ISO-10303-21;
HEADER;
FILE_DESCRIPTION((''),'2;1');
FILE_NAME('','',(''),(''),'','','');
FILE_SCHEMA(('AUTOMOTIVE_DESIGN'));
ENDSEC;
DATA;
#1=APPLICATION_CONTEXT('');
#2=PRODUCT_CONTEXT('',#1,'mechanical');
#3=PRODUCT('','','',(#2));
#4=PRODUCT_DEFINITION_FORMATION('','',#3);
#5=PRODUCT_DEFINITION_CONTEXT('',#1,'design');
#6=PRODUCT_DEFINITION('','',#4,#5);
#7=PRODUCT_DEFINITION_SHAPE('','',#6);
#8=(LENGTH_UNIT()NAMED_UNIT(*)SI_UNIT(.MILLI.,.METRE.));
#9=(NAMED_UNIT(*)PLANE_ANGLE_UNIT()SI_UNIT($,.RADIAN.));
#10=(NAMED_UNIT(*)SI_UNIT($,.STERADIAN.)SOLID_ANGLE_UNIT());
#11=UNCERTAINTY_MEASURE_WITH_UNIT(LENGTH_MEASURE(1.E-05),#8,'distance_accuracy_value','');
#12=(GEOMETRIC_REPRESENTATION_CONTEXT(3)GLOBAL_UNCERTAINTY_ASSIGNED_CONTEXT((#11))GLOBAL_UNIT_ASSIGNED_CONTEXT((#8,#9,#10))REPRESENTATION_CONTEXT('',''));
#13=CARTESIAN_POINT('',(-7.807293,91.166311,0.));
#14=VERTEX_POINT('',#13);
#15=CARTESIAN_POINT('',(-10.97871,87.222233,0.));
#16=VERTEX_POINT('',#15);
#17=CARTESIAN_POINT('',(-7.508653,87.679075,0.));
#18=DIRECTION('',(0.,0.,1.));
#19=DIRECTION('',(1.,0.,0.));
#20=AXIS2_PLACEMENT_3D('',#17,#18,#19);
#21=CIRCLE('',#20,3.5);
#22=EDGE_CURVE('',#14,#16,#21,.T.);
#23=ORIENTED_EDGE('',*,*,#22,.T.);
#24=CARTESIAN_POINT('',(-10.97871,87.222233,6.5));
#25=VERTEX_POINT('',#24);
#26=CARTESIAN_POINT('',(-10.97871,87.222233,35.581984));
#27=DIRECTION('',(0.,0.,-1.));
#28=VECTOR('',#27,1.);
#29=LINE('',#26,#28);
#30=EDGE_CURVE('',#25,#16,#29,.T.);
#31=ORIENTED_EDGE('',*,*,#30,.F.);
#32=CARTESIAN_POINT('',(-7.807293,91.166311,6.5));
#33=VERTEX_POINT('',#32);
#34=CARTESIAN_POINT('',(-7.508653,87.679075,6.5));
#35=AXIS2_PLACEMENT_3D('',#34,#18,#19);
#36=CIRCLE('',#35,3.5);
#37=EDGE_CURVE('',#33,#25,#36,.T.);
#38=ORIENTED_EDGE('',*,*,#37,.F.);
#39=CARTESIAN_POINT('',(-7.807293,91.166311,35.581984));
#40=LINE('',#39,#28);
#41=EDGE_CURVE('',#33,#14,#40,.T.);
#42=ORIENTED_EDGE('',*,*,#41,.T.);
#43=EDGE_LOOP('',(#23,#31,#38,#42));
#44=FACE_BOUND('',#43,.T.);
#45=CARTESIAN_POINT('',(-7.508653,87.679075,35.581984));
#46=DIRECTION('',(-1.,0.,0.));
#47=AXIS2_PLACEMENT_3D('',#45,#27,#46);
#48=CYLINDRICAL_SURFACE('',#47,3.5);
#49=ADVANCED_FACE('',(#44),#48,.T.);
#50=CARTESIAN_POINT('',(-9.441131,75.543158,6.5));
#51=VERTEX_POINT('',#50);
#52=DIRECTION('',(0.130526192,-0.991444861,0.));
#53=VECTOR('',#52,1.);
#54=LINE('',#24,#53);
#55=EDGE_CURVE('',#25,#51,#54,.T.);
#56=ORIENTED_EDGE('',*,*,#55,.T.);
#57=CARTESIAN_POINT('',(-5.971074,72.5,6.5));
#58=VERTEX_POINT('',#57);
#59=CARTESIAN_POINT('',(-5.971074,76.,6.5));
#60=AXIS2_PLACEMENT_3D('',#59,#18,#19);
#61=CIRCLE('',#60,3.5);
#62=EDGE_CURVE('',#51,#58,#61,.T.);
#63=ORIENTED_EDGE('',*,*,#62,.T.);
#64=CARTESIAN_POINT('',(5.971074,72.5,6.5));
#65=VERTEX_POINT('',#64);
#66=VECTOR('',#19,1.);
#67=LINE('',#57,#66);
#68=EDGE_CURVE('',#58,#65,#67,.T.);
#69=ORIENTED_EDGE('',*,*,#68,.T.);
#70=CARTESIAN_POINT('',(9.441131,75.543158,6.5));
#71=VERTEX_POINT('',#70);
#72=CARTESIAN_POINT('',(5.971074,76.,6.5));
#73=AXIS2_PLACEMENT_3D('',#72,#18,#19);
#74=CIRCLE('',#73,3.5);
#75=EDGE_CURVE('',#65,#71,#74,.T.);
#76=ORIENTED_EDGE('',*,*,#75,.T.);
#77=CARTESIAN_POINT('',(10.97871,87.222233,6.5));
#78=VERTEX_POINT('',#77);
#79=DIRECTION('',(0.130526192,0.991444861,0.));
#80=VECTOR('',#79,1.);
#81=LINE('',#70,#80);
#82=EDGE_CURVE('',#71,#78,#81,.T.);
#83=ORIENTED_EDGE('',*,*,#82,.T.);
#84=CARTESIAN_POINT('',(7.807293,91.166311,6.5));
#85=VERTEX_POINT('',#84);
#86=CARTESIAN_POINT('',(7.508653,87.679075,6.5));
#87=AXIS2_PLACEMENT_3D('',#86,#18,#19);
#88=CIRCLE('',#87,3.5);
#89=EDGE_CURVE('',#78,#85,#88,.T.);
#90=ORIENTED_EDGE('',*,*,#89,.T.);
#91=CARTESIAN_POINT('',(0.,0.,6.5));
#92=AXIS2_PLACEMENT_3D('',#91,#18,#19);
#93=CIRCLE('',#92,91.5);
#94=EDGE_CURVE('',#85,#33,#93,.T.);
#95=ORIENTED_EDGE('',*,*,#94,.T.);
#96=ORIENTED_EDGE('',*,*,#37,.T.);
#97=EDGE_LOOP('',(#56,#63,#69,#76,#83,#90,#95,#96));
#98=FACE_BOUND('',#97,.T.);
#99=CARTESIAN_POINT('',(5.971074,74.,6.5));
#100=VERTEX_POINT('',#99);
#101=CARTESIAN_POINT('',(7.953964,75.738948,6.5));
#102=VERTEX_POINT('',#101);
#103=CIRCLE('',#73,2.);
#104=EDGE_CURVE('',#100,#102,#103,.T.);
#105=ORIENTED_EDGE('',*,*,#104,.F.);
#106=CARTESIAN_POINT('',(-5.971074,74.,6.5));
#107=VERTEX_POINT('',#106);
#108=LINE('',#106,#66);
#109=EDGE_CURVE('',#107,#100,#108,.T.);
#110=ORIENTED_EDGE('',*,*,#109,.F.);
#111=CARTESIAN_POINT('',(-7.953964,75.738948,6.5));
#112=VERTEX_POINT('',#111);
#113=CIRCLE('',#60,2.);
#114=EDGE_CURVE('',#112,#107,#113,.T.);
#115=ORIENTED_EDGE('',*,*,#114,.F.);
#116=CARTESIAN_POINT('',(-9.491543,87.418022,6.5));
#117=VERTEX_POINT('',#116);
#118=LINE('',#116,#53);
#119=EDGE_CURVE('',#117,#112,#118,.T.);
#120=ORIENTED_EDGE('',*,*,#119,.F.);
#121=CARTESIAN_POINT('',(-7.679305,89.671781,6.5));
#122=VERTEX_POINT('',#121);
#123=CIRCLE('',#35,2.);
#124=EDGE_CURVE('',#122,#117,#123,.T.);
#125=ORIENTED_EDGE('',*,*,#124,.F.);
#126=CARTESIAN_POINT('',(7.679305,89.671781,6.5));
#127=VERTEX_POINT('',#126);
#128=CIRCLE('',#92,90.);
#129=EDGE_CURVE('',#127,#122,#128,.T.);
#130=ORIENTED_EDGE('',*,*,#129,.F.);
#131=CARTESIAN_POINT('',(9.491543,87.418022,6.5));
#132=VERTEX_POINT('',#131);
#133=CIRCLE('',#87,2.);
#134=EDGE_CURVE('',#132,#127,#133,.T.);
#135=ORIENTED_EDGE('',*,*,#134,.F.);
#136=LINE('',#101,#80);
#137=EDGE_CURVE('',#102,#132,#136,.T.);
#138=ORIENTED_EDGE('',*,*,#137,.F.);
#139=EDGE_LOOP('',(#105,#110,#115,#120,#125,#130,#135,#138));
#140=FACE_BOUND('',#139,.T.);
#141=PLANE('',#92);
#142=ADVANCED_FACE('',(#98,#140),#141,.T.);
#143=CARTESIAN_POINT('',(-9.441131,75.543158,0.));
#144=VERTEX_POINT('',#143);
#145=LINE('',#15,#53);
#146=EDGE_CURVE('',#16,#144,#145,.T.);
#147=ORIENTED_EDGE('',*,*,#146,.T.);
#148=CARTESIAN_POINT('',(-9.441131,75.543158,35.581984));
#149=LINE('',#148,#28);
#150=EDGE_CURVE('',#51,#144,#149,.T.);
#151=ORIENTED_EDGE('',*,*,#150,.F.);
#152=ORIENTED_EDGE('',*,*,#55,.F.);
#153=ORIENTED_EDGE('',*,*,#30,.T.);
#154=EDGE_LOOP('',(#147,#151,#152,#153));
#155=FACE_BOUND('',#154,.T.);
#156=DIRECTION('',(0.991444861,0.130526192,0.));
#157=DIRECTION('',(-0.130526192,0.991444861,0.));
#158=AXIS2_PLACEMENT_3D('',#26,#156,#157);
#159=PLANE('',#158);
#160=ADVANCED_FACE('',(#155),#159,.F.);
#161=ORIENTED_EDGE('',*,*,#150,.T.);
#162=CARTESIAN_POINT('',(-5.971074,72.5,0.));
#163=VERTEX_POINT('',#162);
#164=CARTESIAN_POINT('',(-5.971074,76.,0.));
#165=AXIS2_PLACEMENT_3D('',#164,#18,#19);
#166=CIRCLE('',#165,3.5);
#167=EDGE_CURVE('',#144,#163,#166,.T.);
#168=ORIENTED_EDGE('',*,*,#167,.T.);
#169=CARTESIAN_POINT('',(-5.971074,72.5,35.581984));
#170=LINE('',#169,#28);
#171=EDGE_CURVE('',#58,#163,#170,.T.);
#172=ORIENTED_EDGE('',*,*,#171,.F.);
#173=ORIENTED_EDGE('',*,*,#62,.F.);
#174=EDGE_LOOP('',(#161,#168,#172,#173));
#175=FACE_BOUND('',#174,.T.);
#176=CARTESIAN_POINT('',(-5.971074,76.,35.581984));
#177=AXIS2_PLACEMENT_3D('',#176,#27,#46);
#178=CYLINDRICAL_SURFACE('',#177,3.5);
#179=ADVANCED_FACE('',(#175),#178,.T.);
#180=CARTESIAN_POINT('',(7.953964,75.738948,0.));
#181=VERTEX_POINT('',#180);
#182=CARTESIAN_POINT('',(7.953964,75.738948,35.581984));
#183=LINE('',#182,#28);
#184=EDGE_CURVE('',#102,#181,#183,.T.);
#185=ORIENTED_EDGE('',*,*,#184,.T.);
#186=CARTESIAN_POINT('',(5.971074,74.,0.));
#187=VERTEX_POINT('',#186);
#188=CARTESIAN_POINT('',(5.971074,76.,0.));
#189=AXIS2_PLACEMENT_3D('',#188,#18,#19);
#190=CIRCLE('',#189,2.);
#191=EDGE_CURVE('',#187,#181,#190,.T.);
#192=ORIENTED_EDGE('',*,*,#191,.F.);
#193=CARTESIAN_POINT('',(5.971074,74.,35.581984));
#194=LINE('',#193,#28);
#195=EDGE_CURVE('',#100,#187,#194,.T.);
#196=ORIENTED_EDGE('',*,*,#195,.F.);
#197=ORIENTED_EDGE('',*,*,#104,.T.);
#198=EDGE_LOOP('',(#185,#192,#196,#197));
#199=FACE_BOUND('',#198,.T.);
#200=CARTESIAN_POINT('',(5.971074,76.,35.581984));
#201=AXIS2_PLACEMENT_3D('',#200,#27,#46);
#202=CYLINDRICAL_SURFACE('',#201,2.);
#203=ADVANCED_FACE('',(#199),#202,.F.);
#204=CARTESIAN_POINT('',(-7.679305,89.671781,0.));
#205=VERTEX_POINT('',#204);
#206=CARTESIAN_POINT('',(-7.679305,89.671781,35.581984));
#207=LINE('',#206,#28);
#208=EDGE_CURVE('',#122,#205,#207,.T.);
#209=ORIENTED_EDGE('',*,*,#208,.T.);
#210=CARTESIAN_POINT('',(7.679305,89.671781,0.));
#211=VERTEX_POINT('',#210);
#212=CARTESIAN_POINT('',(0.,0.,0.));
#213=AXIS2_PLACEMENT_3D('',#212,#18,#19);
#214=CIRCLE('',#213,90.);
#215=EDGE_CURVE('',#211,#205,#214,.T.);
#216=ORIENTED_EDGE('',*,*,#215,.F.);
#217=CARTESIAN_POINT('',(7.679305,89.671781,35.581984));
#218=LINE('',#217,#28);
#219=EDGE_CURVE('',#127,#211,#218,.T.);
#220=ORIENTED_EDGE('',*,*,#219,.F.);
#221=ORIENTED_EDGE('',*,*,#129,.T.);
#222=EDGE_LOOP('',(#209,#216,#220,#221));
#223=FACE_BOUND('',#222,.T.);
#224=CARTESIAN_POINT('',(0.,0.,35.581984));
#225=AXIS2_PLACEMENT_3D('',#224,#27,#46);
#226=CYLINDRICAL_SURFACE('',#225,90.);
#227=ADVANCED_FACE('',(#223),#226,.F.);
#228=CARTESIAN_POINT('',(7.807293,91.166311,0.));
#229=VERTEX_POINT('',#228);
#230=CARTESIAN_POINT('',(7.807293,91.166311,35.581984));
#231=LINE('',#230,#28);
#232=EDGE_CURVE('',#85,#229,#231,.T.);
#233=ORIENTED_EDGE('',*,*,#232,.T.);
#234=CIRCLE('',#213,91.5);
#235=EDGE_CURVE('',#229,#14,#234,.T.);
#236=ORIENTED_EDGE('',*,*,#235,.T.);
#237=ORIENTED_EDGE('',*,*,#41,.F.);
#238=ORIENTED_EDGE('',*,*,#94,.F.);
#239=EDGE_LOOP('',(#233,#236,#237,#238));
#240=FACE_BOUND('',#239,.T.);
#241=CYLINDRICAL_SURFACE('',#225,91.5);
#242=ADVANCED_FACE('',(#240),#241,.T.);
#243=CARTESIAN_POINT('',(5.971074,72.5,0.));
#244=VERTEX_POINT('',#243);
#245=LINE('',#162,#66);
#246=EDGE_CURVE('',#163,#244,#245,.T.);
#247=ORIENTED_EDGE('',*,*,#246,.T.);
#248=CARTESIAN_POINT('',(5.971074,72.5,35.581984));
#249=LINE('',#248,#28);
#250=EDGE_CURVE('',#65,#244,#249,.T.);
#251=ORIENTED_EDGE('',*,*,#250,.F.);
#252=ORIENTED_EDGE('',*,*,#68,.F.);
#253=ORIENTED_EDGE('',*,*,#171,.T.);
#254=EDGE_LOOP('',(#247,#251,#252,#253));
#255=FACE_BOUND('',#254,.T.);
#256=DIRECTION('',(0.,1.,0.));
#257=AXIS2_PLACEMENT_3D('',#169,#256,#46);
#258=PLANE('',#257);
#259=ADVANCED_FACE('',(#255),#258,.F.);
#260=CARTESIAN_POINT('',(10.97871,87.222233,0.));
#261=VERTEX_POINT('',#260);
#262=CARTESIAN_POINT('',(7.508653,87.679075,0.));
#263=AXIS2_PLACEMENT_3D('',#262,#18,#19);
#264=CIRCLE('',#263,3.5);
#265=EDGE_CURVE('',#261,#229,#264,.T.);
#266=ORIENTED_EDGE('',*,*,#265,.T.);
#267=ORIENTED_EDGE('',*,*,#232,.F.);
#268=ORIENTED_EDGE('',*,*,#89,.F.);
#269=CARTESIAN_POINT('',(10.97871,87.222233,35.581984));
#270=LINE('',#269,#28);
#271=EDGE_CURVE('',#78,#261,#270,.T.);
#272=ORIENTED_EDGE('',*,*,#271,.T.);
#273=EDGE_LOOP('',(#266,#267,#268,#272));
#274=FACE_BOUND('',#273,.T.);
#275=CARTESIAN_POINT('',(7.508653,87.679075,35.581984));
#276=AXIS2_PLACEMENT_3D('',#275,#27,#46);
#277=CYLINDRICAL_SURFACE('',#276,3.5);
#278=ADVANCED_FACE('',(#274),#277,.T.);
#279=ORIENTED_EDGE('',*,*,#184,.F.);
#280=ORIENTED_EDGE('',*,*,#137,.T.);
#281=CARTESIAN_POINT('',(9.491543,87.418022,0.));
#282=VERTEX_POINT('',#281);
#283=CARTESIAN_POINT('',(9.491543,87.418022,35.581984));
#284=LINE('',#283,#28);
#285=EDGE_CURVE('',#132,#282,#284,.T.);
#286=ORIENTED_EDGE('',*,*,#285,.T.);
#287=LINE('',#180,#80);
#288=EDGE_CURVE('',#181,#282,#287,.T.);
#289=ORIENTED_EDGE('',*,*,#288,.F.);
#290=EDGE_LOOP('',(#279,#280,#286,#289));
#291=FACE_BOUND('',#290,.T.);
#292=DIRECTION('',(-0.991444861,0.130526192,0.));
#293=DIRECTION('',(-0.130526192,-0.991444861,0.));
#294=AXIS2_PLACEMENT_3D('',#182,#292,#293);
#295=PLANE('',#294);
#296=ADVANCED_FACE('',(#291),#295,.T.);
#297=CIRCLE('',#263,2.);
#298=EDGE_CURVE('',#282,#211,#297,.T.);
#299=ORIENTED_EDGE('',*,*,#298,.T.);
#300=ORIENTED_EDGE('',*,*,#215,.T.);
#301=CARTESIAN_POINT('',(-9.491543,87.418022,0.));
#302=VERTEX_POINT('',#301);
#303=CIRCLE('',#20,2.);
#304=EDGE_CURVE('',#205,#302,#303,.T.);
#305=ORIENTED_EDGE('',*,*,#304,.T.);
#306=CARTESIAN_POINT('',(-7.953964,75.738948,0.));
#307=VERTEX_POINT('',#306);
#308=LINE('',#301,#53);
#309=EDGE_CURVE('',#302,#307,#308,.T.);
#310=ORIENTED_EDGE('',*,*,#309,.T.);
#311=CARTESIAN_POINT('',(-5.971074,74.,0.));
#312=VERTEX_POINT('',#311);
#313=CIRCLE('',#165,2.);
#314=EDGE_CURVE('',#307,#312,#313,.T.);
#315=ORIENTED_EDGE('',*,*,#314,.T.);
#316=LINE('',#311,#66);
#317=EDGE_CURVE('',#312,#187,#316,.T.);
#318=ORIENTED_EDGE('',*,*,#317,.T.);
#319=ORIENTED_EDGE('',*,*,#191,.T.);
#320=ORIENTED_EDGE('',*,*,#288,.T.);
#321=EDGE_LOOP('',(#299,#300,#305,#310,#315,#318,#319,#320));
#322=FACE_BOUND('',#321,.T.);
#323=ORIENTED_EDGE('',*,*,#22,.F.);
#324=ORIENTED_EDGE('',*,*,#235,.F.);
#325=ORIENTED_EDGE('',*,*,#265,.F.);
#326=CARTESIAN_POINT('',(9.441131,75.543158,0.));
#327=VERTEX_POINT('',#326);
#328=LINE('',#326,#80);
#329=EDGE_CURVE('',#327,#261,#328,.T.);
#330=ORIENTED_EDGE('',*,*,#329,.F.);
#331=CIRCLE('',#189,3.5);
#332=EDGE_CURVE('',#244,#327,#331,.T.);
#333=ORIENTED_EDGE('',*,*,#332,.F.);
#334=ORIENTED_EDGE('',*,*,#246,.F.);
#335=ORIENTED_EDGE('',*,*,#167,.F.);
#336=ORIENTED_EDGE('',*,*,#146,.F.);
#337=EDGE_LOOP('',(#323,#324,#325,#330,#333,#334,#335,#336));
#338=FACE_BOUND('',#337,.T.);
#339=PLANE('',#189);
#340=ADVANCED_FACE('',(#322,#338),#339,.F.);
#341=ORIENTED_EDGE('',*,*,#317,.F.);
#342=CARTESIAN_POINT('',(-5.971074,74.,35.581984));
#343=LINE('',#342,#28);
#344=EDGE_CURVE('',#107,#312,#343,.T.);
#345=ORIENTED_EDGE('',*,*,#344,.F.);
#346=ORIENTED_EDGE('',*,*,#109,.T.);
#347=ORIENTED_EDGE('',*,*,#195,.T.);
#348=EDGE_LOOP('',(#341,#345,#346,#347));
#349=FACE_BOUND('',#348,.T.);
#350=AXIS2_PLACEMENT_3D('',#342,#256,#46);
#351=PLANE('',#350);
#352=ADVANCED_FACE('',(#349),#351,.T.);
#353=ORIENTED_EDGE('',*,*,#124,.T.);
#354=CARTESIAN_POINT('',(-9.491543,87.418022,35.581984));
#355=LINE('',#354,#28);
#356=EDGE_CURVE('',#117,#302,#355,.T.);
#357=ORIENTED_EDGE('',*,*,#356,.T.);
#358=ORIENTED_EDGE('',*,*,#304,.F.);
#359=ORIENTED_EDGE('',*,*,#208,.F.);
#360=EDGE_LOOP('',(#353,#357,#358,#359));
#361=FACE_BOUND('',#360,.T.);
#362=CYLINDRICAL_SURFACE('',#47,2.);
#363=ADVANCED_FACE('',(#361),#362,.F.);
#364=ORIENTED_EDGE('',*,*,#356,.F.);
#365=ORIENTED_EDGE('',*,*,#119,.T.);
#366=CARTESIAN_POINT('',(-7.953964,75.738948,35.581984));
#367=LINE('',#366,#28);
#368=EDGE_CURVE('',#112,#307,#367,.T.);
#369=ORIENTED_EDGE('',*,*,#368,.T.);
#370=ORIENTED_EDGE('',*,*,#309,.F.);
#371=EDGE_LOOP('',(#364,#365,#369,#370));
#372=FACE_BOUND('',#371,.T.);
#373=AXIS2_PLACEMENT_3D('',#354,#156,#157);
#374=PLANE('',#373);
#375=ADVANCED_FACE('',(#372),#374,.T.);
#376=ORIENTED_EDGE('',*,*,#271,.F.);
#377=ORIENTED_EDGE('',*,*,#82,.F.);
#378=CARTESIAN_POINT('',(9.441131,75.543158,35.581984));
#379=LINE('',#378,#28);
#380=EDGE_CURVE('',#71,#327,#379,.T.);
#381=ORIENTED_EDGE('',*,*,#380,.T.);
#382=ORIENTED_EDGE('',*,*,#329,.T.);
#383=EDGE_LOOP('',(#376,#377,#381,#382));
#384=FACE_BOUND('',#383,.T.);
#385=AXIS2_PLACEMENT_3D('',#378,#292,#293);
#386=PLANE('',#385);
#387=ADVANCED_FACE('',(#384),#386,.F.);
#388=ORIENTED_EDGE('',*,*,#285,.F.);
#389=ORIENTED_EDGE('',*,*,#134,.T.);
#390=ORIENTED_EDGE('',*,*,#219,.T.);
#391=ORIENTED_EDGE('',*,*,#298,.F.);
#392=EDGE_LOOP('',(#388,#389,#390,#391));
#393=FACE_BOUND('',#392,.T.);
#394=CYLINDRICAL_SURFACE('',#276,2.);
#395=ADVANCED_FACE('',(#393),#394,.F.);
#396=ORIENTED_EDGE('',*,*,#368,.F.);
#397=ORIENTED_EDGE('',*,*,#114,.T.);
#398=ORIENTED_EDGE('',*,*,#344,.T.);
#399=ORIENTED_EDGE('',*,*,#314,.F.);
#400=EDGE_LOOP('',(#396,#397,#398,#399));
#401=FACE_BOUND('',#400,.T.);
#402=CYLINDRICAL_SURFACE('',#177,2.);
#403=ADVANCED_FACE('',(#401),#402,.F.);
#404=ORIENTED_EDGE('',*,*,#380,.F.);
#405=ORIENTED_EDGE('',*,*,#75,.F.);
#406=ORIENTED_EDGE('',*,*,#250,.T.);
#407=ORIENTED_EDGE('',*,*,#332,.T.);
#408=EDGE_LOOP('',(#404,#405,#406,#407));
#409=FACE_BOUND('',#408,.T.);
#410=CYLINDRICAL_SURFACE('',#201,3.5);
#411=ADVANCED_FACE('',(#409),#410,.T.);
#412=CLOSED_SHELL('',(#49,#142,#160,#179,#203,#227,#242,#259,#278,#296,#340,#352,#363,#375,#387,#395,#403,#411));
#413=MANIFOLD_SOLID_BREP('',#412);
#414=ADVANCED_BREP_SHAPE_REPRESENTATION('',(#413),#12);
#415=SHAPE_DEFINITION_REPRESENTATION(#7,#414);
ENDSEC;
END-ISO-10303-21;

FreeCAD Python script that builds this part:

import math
import FreeCAD as App
import Part
import Sketcher
Q = App.Units.Quantity

doc = App.newDocument("Part")
body = doc.addObject("PartDesign::Body", "Body")

# Sketch on XY plane
sketch1 = body.newObject("Sketcher::SketchObject", "Sketch")
sketch1.AttachmentSupport = (doc.getObject("XY_Plane"), [""])
sketch1.MapMode = "FlatFace"
sketch1.addGeometry(Part.LineSegment(App.Vector(9.441131, 75.543158, 0), App.Vector(10.97871, 87.222233, 0)), False)
sketch1.addGeometry(Part.ArcOfCircle(Part.Circle(App.Vector(7.508653, 87.679075, 0), App.Vector(0, 0, 1), 3.5), math.radians(-7.5), math.radians(85.105251)), False)
sketch1.addGeometry(Part.ArcOfCircle(Part.Circle(App.Vector(0, 0, 0), App.Vector(0, 0, 1), 91.5), math.radians(85.105251), math.radians(94.894749)), False)
sketch1.addGeometry(Part.ArcOfCircle(Part.Circle(App.Vector(-7.508653, 87.679075, 0), App.Vector(0, 0, 1), 3.5), math.radians(94.894749), math.radians(187.5)), False)
sketch1.addGeometry(Part.LineSegment(App.Vector(-10.97871, 87.222233, 0), App.Vector(-9.441131, 75.543158, 0)), False)
sketch1.addGeometry(Part.ArcOfCircle(Part.Circle(App.Vector(-5.971074, 76, 0), App.Vector(0, 0, 1), 3.5), math.radians(-172.5), math.radians(-90)), False)
sketch1.addGeometry(Part.LineSegment(App.Vector(-5.971074, 72.5, 0), App.Vector(5.971074, 72.5, 0)), False)
sketch1.addGeometry(Part.ArcOfCircle(Part.Circle(App.Vector(5.971074, 76, 0), App.Vector(0, 0, 1), 3.5), math.radians(-90), math.radians(-7.5)), False)
sketch1.addGeometry(Part.LineSegment(App.Vector(-7.953964, 75.738948, 0), App.Vector(-9.491543, 87.418022, 0)), False)
sketch1.addGeometry(Part.ArcOfCircle(Part.Circle(App.Vector(-7.508653, 87.679075, 0), App.Vector(0, 0, 1), 2), math.radians(94.894749), math.radians(187.5)), False)
sketch1.addGeometry(Part.ArcOfCircle(Part.Circle(App.Vector(0, 0, 0), App.Vector(0, 0, 1), 90), math.radians(85.105251), math.radians(94.894749)), False)
sketch1.addGeometry(Part.ArcOfCircle(Part.Circle(App.Vector(7.508653, 87.679075, 0), App.Vector(0, 0, 1), 2), math.radians(-7.5), math.radians(85.105251)), False)
sketch1.addGeometry(Part.LineSegment(App.Vector(9.491543, 87.418022, 0), App.Vector(7.953964, 75.738948, 0)), False)
sketch1.addGeometry(Part.ArcOfCircle(Part.Circle(App.Vector(5.971074, 76, 0), App.Vector(0, 0, 1), 2), math.radians(-90), math.radians(-7.5)), False)
sketch1.addGeometry(Part.LineSegment(App.Vector(5.971074, 74, 0), App.Vector(-5.971074, 74, 0)), False)
sketch1.addGeometry(Part.ArcOfCircle(Part.Circle(App.Vector(-5.971074, 76, 0), App.Vector(0, 0, 1), 2), math.radians(-172.5), math.radians(-90)), False)
sketch1.addConstraint(Sketcher.Constraint("Tangent", 0, 2, 1, 1))
sketch1.addConstraint(Sketcher.Constraint("Tangent", 1, 2, 2, 1))
sketch1.addConstraint(Sketcher.Constraint("Tangent", 2, 2, 3, 1))
sketch1.addConstraint(Sketcher.Constraint("Tangent", 3, 2, 4, 1))
sketch1.addConstraint(Sketcher.Constraint("Tangent", 4, 2, 5, 1))
sketch1.addConstraint(Sketcher.Constraint("Tangent", 5, 2, 6, 1))
sketch1.addConstraint(Sketcher.Constraint("Tangent", 6, 2, 7, 1))
sketch1.addConstraint(Sketcher.Constraint("Tangent", 7, 2, 0, 1))
sketch1.addConstraint(Sketcher.Constraint("Tangent", 8, 2, 9, 2))
sketch1.addConstraint(Sketcher.Constraint("Tangent", 9, 1, 10, 2))
sketch1.addConstraint(Sketcher.Constraint("Tangent", 10, 1, 11, 2))
sketch1.addConstraint(Sketcher.Constraint("Tangent", 11, 1, 12, 1))
sketch1.addConstraint(Sketcher.Constraint("Tangent", 12, 2, 13, 2))
sketch1.addConstraint(Sketcher.Constraint("Tangent", 13, 1, 14, 1))
sketch1.addConstraint(Sketcher.Constraint("Tangent", 14, 2, 15, 2))
sketch1.addConstraint(Sketcher.Constraint("Tangent", 15, 1, 8, 1))
sketch1.addConstraint(Sketcher.Constraint("Horizontal", 6))
sketch1.addConstraint(Sketcher.Constraint("Horizontal", 14))
sketch1.addConstraint(Sketcher.Constraint("Coincident", 2, 3, -1, 1))
sketch1.addConstraint(Sketcher.Constraint("Coincident", 10, 3, -1, 1))
sketch1.addConstraint(Sketcher.Constraint("Coincident", 9, 3, 3, 3))
sketch1.addConstraint(Sketcher.Constraint("Coincident", 11, 3, 1, 3))
sketch1.addConstraint(Sketcher.Constraint("Coincident", 13, 3, 7, 3))
sketch1.addConstraint(Sketcher.Constraint("Coincident", 15, 3, 5, 3))
sketch1.addConstraint(Sketcher.Constraint("Equal", 1, 3))
sketch1.addConstraint(Sketcher.Constraint("Equal", 3, 5))
sketch1.addConstraint(Sketcher.Constraint("Equal", 5, 7))
sketch1.addConstraint(Sketcher.Constraint("Equal", 11, 13))
sketch1.addConstraint(Sketcher.Constraint("Symmetric", 0, 2, 3, 2, -2))
sketch1.addConstraint(Sketcher.Constraint("Radius", 9, 2.0))
sketch1.addConstraint(Sketcher.Constraint("Radius", 10, 90.0))
sketch1.addConstraint(Sketcher.Constraint("Radius", 1, 3.5))
sketch1.addConstraint(Sketcher.Constraint("DistanceY", -1, 1, 5, 3, 76.0))
sketch1.addConstraint(Sketcher.Constraint("Angle", 0, Q("82.5 deg")))
sketch1.addConstraint(Sketcher.Constraint("DistanceX", 6, 1, 6, 2, 11.942148))
pad1 = body.newObject("PartDesign::Pad", "Pad")
pad1.Profile = sketch1
pad1.Length = 6.5

doc.recompute()
